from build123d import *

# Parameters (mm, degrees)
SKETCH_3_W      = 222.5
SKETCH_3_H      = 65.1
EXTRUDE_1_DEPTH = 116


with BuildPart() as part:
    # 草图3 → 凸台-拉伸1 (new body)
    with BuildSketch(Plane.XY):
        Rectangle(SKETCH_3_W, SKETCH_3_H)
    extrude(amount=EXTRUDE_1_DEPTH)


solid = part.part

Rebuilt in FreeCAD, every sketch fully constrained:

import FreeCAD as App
import Part
import Sketcher

V = App.Vector

doc = App.newDocument("Part")
body = doc.addObject("PartDesign::Body", "Body")

sketch1 = body.newObject("Sketcher::SketchObject", "Sketch")
sketch1.AttachmentSupport = (doc.getObject("XY_Plane"), [""])
sketch1.MapMode = "FlatFace"
sketch1.addGeometry(Part.LineSegment(V(-111, 33, 0), V(-111, -33, 0)), False)
sketch1.addGeometry(Part.LineSegment(V(-111, -33, 0), V(111, -33, 0)), False)
sketch1.addGeometry(Part.LineSegment(V(111, -33, 0), V(111, 33, 0)), False)
sketch1.addGeometry(Part.LineSegment(V(111, 33, 0), V(-111, 33, 0)), False)
sketch1.addConstraint(Sketcher.Constraint("Coincident", 0, 2, 1, 1))
sketch1.addConstraint(Sketcher.Constraint("Coincident", 1, 2, 2, 1))
sketch1.addConstraint(Sketcher.Constraint("Coincident", 2, 2, 3, 1))
sketch1.addConstraint(Sketcher.Constraint("Coincident", 3, 2, 0, 1))
sketch1.addConstraint(Sketcher.Constraint("Vertical", 0))
sketch1.addConstraint(Sketcher.Constraint("Horizontal", 1))
sketch1.addConstraint(Sketcher.Constraint("Vertical", 2))
sketch1.addConstraint(Sketcher.Constraint("Horizontal", 3))
sketch1.addConstraint(Sketcher.Constraint("Symmetric", 0, 2, 2, 2, -1, 1))
sketch1.addConstraint(Sketcher.Constraint("DistanceX", 1, 1, 1, 2, 222.5))
sketch1.addConstraint(Sketcher.Constraint("DistanceY", 0, 2, 0, 1, 65.1))
pad1 = body.newObject("PartDesign::Pad", "Pad")
pad1.Profile = sketch1
pad1.Length = 116

doc.recompute()
